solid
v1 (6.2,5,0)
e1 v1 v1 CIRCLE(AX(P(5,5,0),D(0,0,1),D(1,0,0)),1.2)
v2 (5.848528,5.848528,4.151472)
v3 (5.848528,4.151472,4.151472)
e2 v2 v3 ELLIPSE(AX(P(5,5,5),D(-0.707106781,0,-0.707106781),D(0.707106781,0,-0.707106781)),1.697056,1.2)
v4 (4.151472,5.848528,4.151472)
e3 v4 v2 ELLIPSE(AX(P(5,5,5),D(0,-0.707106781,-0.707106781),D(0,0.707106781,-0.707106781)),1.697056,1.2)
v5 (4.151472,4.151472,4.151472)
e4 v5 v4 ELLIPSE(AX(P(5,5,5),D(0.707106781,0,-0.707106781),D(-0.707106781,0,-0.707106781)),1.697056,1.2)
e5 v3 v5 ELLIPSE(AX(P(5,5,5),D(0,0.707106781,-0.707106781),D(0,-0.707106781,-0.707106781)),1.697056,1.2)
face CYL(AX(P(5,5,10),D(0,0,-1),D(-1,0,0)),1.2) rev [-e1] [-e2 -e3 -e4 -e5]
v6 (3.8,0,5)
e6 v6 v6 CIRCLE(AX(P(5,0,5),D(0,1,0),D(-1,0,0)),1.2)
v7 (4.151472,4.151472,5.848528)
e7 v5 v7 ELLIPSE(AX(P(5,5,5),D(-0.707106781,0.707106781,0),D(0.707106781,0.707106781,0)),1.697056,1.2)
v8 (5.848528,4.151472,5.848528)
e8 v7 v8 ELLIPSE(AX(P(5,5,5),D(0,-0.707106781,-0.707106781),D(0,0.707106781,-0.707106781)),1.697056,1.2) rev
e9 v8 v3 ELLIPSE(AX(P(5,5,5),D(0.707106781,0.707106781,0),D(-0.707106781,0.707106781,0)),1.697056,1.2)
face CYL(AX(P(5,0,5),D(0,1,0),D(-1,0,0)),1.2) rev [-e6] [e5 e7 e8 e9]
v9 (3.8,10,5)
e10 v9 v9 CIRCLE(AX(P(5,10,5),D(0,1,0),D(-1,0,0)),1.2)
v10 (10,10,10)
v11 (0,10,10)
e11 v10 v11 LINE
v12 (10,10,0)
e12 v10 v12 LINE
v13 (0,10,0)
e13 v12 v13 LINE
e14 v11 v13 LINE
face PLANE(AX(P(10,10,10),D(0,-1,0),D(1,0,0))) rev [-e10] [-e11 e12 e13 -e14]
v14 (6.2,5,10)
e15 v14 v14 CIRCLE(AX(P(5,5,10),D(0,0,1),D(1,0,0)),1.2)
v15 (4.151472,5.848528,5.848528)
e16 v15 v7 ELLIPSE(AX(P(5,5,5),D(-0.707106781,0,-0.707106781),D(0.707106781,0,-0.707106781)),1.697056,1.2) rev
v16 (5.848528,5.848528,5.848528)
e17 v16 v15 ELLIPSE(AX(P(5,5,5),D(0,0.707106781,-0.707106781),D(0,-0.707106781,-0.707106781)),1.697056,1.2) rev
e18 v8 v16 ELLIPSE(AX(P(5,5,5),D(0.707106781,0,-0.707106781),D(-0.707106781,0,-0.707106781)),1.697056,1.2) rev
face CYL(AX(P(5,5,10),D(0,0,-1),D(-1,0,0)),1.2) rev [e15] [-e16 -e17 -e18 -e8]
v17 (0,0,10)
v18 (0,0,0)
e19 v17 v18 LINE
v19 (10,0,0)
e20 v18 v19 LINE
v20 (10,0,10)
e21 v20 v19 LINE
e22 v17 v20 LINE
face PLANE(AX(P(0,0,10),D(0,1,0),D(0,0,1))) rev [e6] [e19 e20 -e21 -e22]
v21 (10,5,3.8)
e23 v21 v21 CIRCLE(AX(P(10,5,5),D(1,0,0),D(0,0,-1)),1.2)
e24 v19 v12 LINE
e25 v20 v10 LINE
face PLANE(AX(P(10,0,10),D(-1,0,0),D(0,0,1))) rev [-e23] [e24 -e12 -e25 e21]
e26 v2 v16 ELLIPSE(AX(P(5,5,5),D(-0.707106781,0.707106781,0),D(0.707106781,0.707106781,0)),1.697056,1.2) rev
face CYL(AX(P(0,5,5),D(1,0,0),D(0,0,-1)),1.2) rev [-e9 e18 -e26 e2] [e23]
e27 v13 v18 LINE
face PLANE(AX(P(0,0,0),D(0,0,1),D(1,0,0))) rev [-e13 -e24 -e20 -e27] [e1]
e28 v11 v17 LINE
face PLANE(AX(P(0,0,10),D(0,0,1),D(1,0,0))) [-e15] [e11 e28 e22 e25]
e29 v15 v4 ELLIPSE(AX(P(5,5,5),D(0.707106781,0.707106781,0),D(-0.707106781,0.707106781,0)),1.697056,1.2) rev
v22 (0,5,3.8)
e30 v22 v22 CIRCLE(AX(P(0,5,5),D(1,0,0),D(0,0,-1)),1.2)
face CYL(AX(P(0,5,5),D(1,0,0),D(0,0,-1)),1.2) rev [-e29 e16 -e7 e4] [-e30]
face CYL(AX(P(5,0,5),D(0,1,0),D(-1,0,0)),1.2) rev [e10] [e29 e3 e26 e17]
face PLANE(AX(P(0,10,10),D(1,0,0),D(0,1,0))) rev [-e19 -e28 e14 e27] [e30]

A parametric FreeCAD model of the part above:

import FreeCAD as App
import Part
import Sketcher


def add_polygon(sketch, points):
    """Adds a closed chain of lines whose ends are joined by coincident constraints."""
    first, n = sketch.GeometryCount, len(points)
    for a, b in zip(points, points[1:] + points[:1]):
        sketch.addGeometry(Part.LineSegment(App.Vector(*a, 0), App.Vector(*b, 0)), False)
    for i in range(n):
        sketch.addConstraint(Sketcher.Constraint("Coincident", first + i, 2, first + (i + 1) % n, 1))

doc = App.newDocument("Part")
body = doc.addObject("PartDesign::Body", "Body")

# Sketch on XY plane
sketch1 = doc.addObject("Sketcher::SketchObject", "Sketch")
body.addObject(sketch1)
sketch1.AttachmentSupport = (doc.XY_Plane, [""])
sketch1.MapMode = "FlatFace"
add_polygon(sketch1, [(0, 10), (0, 0), (10, 0), (10, 10)])  # lines 0-3
sketch1.addGeometry(Part.Circle(App.Vector(5, 5, 0), App.Vector(0, 0, 1), 1.2), False)  # 4
sketch1.addConstraint([
    Sketcher.Constraint("Vertical", 0),
    Sketcher.Constraint("Horizontal", 1),
    Sketcher.Constraint("Vertical", 2),
    Sketcher.Constraint("Horizontal", 3),
    Sketcher.Constraint("Coincident", 0, 2, -1, 1),
    Sketcher.Constraint("Equal", 3, 0),
    Sketcher.Constraint("Diameter", 4, 2.4),
    Sketcher.Constraint("DistanceX", 1, 1, 1, 2, 10.0),
    Sketcher.Constraint("DistanceX", -1, 1, 4, 3, 5.0),
    Sketcher.Constraint("DistanceY", -1, 1, 4, 3, 5.0),
])
pad1 = doc.addObject("PartDesign::Pad", "Pad")
body.addObject(pad1)
pad1.Profile = sketch1
pad1.Length = 10

# Sketch on XZ plane
sketch2 = doc.addObject("Sketcher::SketchObject", "Sketch001")
body.addObject(sketch2)
sketch2.AttachmentSupport = (doc.XZ_Plane, [""])
sketch2.MapMode = "FlatFace"
sketch2.AttachmentOffset = App.Placement(App.Vector(0, 0, -10), App.Rotation())
sketch2.addGeometry(Part.Circle(App.Vector(5, 5, 0), App.Vector(0, 0, 1), 1.2), False)
sketch2.addConstraint([
    Sketcher.Constraint("Diameter", 0, 2.4),
    Sketcher.Constraint("DistanceX", -1, 1, 0, 3, 5.0),
    Sketcher.Constraint("DistanceY", -1, 1, 0, 3, 5.0),
])
pocket1 = doc.addObject("PartDesign::Pocket", "Pocket")
body.addObject(pocket1)
pocket1.Profile = sketch2
pocket1.Type = "ThroughAll"
pocket1.Reversed = True

# Sketch on YZ plane
sketch3 = doc.addObject("Sketcher::SketchObject", "Sketch002")
body.addObject(sketch3)
sketch3.AttachmentSupport = (doc.YZ_Plane, [""])
sketch3.MapMode = "FlatFace"
sketch3.AttachmentOffset = App.Placement(App.Vector(0, 0, 10), App.Rotation())
sketch3.addGeometry(Part.Circle(App.Vector(5, 5, 0), App.Vector(0, 0, 1), 1.2), False)
sketch3.addConstraint([
    Sketcher.Constraint("Diameter", 0, 2.4),
    Sketcher.Constraint("DistanceX", -1, 1, 0, 3, 5.0),
    Sketcher.Constraint("DistanceY", -1, 1, 0, 3, 5.0),
])
pocket2 = doc.addObject("PartDesign::Pocket", "Pocket001")
body.addObject(pocket2)
pocket2.Profile = sketch3
pocket2.Length = 10

doc.recompute()
